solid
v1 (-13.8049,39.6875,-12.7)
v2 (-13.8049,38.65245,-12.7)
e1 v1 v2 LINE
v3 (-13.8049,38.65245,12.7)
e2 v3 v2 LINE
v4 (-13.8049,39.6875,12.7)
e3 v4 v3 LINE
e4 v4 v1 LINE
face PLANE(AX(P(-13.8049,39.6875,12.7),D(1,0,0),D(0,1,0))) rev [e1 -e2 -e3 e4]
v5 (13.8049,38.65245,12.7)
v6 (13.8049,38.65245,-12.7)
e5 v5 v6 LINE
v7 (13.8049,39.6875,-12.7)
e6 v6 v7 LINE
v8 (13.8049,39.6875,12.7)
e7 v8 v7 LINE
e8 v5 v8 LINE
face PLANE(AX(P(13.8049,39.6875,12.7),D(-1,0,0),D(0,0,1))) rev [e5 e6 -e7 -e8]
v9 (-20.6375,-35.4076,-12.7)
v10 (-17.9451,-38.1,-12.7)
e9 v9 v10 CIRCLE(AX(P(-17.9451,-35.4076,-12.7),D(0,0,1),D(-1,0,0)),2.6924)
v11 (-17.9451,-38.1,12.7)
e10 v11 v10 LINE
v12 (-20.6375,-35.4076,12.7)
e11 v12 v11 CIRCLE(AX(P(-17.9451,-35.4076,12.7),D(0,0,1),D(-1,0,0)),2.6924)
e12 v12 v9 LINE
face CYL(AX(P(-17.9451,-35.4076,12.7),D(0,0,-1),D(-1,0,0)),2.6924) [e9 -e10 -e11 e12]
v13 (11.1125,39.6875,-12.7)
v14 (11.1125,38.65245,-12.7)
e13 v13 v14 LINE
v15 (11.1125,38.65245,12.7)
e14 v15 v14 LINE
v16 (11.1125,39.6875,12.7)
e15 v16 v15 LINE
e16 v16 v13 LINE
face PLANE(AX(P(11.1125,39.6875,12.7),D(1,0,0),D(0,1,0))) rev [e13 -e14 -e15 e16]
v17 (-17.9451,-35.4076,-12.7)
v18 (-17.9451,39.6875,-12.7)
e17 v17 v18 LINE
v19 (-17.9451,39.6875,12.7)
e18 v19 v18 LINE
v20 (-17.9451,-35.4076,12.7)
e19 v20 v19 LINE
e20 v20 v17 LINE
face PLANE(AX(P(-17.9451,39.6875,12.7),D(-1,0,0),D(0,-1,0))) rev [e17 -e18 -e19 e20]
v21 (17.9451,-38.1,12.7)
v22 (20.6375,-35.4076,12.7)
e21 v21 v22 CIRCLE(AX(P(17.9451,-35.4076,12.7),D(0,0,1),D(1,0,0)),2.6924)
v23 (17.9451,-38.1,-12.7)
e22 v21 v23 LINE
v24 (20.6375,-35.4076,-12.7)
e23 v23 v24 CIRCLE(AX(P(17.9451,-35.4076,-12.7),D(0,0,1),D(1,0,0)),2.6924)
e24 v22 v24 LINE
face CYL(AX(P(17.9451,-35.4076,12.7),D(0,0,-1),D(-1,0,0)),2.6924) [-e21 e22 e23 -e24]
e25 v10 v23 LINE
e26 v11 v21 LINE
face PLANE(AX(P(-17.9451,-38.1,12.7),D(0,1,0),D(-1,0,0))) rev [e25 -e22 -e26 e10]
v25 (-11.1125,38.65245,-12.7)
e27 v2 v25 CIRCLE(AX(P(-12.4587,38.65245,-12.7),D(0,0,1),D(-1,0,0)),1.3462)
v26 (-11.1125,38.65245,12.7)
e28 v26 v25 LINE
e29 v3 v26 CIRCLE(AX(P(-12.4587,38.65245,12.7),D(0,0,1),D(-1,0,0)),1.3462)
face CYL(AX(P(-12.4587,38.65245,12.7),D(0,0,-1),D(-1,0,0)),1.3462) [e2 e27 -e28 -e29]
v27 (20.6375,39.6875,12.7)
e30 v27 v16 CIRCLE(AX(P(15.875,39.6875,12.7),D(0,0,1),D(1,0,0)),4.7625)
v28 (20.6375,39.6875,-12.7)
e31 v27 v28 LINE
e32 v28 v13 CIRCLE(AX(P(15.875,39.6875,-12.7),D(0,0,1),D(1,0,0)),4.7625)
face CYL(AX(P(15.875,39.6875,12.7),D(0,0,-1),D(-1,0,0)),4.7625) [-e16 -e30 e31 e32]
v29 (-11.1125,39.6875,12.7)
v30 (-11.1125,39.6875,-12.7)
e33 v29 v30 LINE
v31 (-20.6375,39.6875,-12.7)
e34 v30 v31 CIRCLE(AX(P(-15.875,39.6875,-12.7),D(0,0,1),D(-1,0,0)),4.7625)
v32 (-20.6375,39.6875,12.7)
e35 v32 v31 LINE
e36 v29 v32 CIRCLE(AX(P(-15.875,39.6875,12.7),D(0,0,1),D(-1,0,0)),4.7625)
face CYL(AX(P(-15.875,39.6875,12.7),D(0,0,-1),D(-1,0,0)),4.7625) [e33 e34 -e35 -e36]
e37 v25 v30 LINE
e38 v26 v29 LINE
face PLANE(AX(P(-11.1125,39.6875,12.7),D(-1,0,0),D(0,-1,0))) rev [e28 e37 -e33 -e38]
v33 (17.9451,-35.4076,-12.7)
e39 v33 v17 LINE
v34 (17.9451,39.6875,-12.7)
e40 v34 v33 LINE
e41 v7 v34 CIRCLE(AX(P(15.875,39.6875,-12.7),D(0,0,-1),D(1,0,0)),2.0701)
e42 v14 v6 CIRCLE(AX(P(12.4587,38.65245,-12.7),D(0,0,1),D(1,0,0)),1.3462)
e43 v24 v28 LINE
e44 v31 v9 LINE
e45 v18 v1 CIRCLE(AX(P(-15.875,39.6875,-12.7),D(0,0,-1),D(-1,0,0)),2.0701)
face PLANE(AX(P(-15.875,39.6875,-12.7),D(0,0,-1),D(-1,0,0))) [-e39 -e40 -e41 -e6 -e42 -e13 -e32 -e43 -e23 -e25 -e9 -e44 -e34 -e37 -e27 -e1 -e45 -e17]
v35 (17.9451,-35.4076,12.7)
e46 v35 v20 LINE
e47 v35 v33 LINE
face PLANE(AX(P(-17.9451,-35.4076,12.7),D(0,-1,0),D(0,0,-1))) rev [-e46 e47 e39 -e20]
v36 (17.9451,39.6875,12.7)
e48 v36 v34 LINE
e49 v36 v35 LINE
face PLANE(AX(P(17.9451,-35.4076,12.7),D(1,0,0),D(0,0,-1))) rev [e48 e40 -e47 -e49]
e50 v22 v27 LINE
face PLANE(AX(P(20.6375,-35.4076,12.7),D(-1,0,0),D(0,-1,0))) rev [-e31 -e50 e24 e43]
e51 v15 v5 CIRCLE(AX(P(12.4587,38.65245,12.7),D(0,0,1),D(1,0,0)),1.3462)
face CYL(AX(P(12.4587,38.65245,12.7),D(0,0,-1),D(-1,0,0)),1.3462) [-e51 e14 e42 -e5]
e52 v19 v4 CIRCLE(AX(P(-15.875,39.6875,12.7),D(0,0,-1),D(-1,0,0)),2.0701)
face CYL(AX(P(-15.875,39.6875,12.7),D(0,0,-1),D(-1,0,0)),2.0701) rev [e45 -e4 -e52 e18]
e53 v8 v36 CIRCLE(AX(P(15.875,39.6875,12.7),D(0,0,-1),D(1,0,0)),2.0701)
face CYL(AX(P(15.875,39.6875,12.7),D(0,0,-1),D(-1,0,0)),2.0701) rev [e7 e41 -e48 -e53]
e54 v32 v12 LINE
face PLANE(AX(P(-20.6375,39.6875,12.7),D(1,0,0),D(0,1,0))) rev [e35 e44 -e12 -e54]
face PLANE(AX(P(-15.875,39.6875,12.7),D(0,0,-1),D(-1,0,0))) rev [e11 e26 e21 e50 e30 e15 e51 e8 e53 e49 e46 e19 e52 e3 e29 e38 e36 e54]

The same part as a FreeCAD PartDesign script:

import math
import FreeCAD as App
import Part
import Sketcher

V = App.Vector
Q = App.Units.Quantity

doc = App.newDocument("Part")
body = doc.addObject("PartDesign::Body", "Body")

# Sketch on XY plane
sketch1 = body.newObject("Sketcher::SketchObject", "Sketch")
sketch1.AttachmentSupport = (doc.getObject("XY_Plane"), [""])
sketch1.MapMode = "FlatFace"
sketch1.addGeometry([
    Part.LineSegment(V(-20.6, 39.7, 0), V(-20.6, -35.4, 0)),  # 0
    Part.ArcOfCircle(Part.Circle(V(-17.9, -35.4, 0), V(0, 0, 1), 2.7), math.radians(180), math.radians(270)),  # 1
    Part.LineSegment(V(-17.9, -38.1, 0), V(17.9, -38.1, 0)),  # 2
    Part.ArcOfCircle(Part.Circle(V(17.9, -35.4, 0), V(0, 0, 1), 2.7), math.radians(-90), math.radians(0)),  # 3
    Part.LineSegment(V(20.6, -35.4, 0), V(20.6, 39.7, 0)),  # 4
    Part.ArcOfCircle(Part.Circle(V(15.9, 39.7, 0), V(0, 0, 1), 4.8), math.radians(0), math.radians(180)),  # 5
    Part.LineSegment(V(11.1, 39.7, 0), V(11.1, 38.7, 0)),  # 6
    Part.ArcOfCircle(Part.Circle(V(12.5, 38.7, 0), V(0, 0, 1), 1.3), math.radians(180), math.radians(360)),  # 7
    Part.LineSegment(V(13.8, 38.7, 0), V(13.8, 39.7, 0)),  # 8
    Part.ArcOfCircle(Part.Circle(V(15.9, 39.7, 0), V(0, 0, 1), 2.1), math.radians(0), math.radians(180)),  # 9
    Part.LineSegment(V(17.9, 39.7, 0), V(17.9, -35.4, 0)),  # 10
    Part.LineSegment(V(17.9, -35.4, 0), V(-17.9, -35.4, 0)),  # 11
    Part.LineSegment(V(-17.9, -35.4, 0), V(-17.9, 39.7, 0)),  # 12
    Part.ArcOfCircle(Part.Circle(V(-15.9, 39.7, 0), V(0, 0, 1), 2.1), math.radians(0), math.radians(180)),  # 13
    Part.LineSegment(V(-13.8, 39.7, 0), V(-13.8, 38.7, 0)),  # 14
    Part.ArcOfCircle(Part.Circle(V(-12.5, 38.7, 0), V(0, 0, 1), 1.3), math.radians(180), math.radians(360)),  # 15
    Part.LineSegment(V(-11.1, 38.7, 0), V(-11.1, 39.7, 0)),  # 16
    Part.ArcOfCircle(Part.Circle(V(-15.9, 39.7, 0), V(0, 0, 1), 4.8), math.radians(0), math.radians(180)),  # 17
], False)
sketch1.addConstraint([
    Sketcher.Constraint("Tangent", 0, 2, 1, 1),
    Sketcher.Constraint("Tangent", 1, 2, 2, 1),
    Sketcher.Constraint("Tangent", 2, 2, 3, 1),
    Sketcher.Constraint("Tangent", 3, 2, 4, 1),
    Sketcher.Constraint("Tangent", 4, 2, 5, 1),
    Sketcher.Constraint("Tangent", 5, 2, 6, 1),
    Sketcher.Constraint("Tangent", 6, 2, 7, 1),
    Sketcher.Constraint("Tangent", 7, 2, 8, 1),
    Sketcher.Constraint("Tangent", 8, 2, 9, 2),
    Sketcher.Constraint("Tangent", 9, 1, 10, 1),
    Sketcher.Constraint("Coincident", 10, 2, 11, 1),
    Sketcher.Constraint("Coincident", 11, 2, 12, 1),
    Sketcher.Constraint("Tangent", 12, 2, 13, 2),
    Sketcher.Constraint("Tangent", 13, 1, 14, 1),
    Sketcher.Constraint("Tangent", 14, 2, 15, 1),
    Sketcher.Constraint("Tangent", 15, 2, 16, 1),
    Sketcher.Constraint("Tangent", 16, 2, 17, 1),
    Sketcher.Constraint("Tangent", 17, 2, 0, 1),
    Sketcher.Constraint("Vertical", 0),
    Sketcher.Constraint("Horizontal", 2),
    Sketcher.Constraint("Vertical", 4),
    Sketcher.Constraint("Vertical", 6),
    Sketcher.Constraint("Vertical", 8),
    Sketcher.Constraint("Vertical", 10),
    Sketcher.Constraint("Horizontal", 11),
    Sketcher.Constraint("Vertical", 12),
    Sketcher.Constraint("Vertical", 14),
    Sketcher.Constraint("Vertical", 16),
    Sketcher.Constraint("Coincident", 9, 3, 5, 3),
    Sketcher.Constraint("Coincident", 17, 3, 13, 3),
    Sketcher.Constraint("Coincident", 10, 2, 3, 3),
    Sketcher.Constraint("Coincident", 11, 2, 1, 3),
    Sketcher.Constraint("Equal", 9, 13),
    Sketcher.Constraint("Symmetric", 5, 3, 13, 3, -2),
    Sketcher.Constraint("Horizontal", 7, 3, 15, 3),
    Sketcher.Constraint("Radius", 1, Q("0.106 in")),
    Sketcher.Constraint("Radius", 5, Q("0.1875 in")),
    Sketcher.Constraint("DistanceY", 1, 2, -1, 1, Q("1.5 in")),
    Sketcher.Constraint("DistanceX", 2, 1, 2, 2, Q("1.413 in")),
    Sketcher.Constraint("DistanceY", 0, 2, 0, 1, Q("2.9565 in")),
    Sketcher.Constraint("DistanceY", 6, 2, 6, 1, 1.03505),
])
pad1 = body.newObject("PartDesign::Pad", "Pad")
pad1.Profile = sketch1
pad1.Length = Q("1 in")
pad1.Midplane = True

doc.recompute()
